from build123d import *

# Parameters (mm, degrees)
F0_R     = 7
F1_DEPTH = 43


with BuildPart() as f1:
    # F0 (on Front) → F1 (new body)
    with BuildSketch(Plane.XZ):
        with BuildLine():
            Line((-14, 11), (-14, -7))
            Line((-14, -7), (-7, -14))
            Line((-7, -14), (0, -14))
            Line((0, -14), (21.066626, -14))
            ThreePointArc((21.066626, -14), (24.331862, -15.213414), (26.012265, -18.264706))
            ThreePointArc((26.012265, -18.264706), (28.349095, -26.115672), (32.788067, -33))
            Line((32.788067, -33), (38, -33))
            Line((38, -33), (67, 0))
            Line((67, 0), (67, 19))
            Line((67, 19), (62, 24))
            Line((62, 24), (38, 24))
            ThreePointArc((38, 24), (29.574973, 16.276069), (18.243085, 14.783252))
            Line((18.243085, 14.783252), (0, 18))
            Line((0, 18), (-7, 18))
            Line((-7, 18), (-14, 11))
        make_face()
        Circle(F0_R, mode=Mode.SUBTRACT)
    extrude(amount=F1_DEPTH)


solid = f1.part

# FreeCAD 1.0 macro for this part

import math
import FreeCAD as App
import Part
import Sketcher

V = App.Vector
Q = App.Units.Quantity

doc = App.newDocument("Part")
body = doc.addObject("PartDesign::Body", "Body")

sketch1 = body.newObject("Sketcher::SketchObject", "Sketch")
sketch1.AttachmentSupport = (doc.getObject("XZ_Plane"), [""])
sketch1.MapMode = "FlatFace"
sketch1.addGeometry(Part.LineSegment(V(-14, 11, 0), V(-14, -7, 0)), False)
sketch1.addGeometry(Part.LineSegment(V(-14, -7, 0), V(-7, -14, 0)), False)
sketch1.addGeometry(Part.LineSegment(V(-7, -14, 0), V(21.066626, -14, 0)), False)
sketch1.addGeometry(Part.ArcOfCircle(Part.Circle(V(21.066626, -19.000001, 0), V(0, 0, 1), 5.000001), math.radians(8.456524), math.radians(89.999997)), False)
sketch1.addGeometry(Part.ArcOfCircle(Part.Circle(V(54.69697, -14, 0), V(0, 0, 1), 29), math.radians(-171.543481), math.radians(-139.067277)), False)
sketch1.addGeometry(Part.LineSegment(V(32.788067, -33, 0), V(38, -33, 0)), False)
sketch1.addGeometry(Part.LineSegment(V(38, -33, 0), V(67, 0, 0)), False)
sketch1.addGeometry(Part.LineSegment(V(67, 0, 0), V(67, 19, 0)), False)
sketch1.addGeometry(Part.LineSegment(V(67, 19, 0), V(62, 24, 0)), False)
sketch1.addGeometry(Part.LineSegment(V(62, 24, 0), V(38, 24, 0)), False)
sketch1.addGeometry(Part.ArcOfCircle(Part.Circle(V(21.542401, 33.494598, 0), V(0, 0, 1), 18.999999), math.radians(-100.000002), math.radians(-29.981194)), False)
sketch1.addGeometry(Part.LineSegment(V(18.243085, 14.783252, 0), V(0, 18, 0)), False)
sketch1.addGeometry(Part.LineSegment(V(0, 18, 0), V(-7, 18, 0)), False)
sketch1.addGeometry(Part.LineSegment(V(-7, 18, 0), V(-14, 11, 0)), False)
sketch1.addGeometry(Part.Circle(V(0, 0, 0), V(0, 0, 1), 7), False)
sketch1.addConstraint(Sketcher.Constraint("Coincident", 0, 2, 1, 1))
sketch1.addConstraint(Sketcher.Constraint("Coincident", 1, 2, 2, 1))
sketch1.addConstraint(Sketcher.Constraint("Tangent", 2, 2, 3, 2))
sketch1.addConstraint(Sketcher.Constraint("Tangent", 3, 1, 4, 1))
sketch1.addConstraint(Sketcher.Constraint("Coincident", 4, 2, 5, 1))
sketch1.addConstraint(Sketcher.Constraint("Coincident", 5, 2, 6, 1))
sketch1.addConstraint(Sketcher.Constraint("Coincident", 6, 2, 7, 1))
sketch1.addConstraint(Sketcher.Constraint("Coincident", 7, 2, 8, 1))
sketch1.addConstraint(Sketcher.Constraint("Coincident", 8, 2, 9, 1))
sketch1.addConstraint(Sketcher.Constraint("Coincident", 9, 2, 10, 2))
sketch1.addConstraint(Sketcher.Constraint("Tangent", 10, 1, 11, 1))
sketch1.addConstraint(Sketcher.Constraint("Coincident", 11, 2, 12, 1))
sketch1.addConstraint(Sketcher.Constraint("Coincident", 12, 2, 13, 1))
sketch1.addConstraint(Sketcher.Constraint("Coincident", 13, 2, 0, 1))
sketch1.addConstraint(Sketcher.Constraint("Vertical", 0))
sketch1.addConstraint(Sketcher.Constraint("Horizontal", 2))
sketch1.addConstraint(Sketcher.Constraint("Horizontal", 5))
sketch1.addConstraint(Sketcher.Constraint("Vertical", 7))
sketch1.addConstraint(Sketcher.Constraint("Horizontal", 9))
sketch1.addConstraint(Sketcher.Constraint("Horizontal", 12))
sketch1.addConstraint(Sketcher.Constraint("Coincident", 14, 3, -1, 1))
sketch1.addConstraint(Sketcher.Constraint("PointOnObject", 6, 2, -1))
sketch1.addConstraint(Sketcher.Constraint("PointOnObject", 11, 2, -2))
sketch1.addConstraint(Sketcher.Constraint("Parallel", 1, 8))
sketch1.addConstraint(Sketcher.Constraint("Perpendicular", 8, 13))
sketch1.addConstraint(Sketcher.Constraint("Horizontal", 4, 3, 1, 2))
sketch1.addConstraint(Sketcher.Constraint("Vertical", 5, 2, 9, 2))
sketch1.addConstraint(Sketcher.Constraint("Vertical", 1, 2, 12, 2))
sketch1.addConstraint(Sketcher.Constraint("Equal", 1, 13))
sketch1.addConstraint(Sketcher.Constraint("Diameter", 14, Q("14 mm")))
sketch1.addConstraint(Sketcher.Constraint("Radius", 3, Q("5.000001 mm")))
sketch1.addConstraint(Sketcher.Constraint("Radius", 4, Q("29 mm")))
sketch1.addConstraint(Sketcher.Constraint("Radius", 10, Q("18.999999 mm")))
sketch1.addConstraint(Sketcher.Constraint("DistanceX", 9, 2, 9, 1, Q("24 mm")))
sketch1.addConstraint(Sketcher.Constraint("DistanceX", 12, 2, 12, 1, Q("7 mm")))
sketch1.addConstraint(Sketcher.Constraint("DistanceY", 0, 2, 0, 1, Q("18 mm")))
sketch1.addConstraint(Sketcher.Constraint("DistanceY", 7, 1, 7, 2, Q("19 mm")))
sketch1.addConstraint(Sketcher.Constraint("Angle", 11, Q("170 deg")))
sketch1.addConstraint(Sketcher.Constraint("DistanceY", 3, 3, -1, 1, Q("19.000001 mm")))
sketch1.addConstraint(Sketcher.Constraint("DistanceX", 0, 2, -1, 1, Q("14 mm")))
sketch1.addConstraint(Sketcher.Constraint("DistanceY", 4, 2, -1, 1, Q("33 mm")))
sketch1.addConstraint(Sketcher.Constraint("DistanceX", -1, 1, 5, 2, Q("38 mm")))
sketch1.addConstraint(Sketcher.Constraint("DistanceX", -1, 1, 6, 2, Q("67 mm")))
sketch1.addConstraint(Sketcher.Constraint("DistanceX", 2, 1, 2, 2, Q("28.066626 mm")))
pad1 = body.newObject("PartDesign::Pad", "Pad")
pad1.Profile = sketch1
pad1.Length = 43

doc.recompute()
